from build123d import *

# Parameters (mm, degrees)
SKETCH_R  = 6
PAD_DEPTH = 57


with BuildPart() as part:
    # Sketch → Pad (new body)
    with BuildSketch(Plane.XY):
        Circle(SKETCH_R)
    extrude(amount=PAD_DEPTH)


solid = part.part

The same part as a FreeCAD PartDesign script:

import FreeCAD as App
import Part
import Sketcher

V = App.Vector

doc = App.newDocument("Part")
body = doc.addObject("PartDesign::Body", "Body")

# Sketch on XY plane
sketch1 = body.newObject("Sketcher::SketchObject", "Sketch")
sketch1.AttachmentSupport = (doc.getObject("XY_Plane"), [""])
sketch1.MapMode = "FlatFace"
sketch1.addGeometry(Part.Circle(V(0, 0, 0), V(0, 0, 1), 6), False)
sketch1.addConstraint([
    Sketcher.Constraint("Coincident", 0, 3, -1, 1),
    Sketcher.Constraint("Diameter", 0, 12.0),
])
pad1 = body.newObject("PartDesign::Pad", "Pad")
pad1.Profile = sketch1
pad1.Length = 57

doc.recompute()
